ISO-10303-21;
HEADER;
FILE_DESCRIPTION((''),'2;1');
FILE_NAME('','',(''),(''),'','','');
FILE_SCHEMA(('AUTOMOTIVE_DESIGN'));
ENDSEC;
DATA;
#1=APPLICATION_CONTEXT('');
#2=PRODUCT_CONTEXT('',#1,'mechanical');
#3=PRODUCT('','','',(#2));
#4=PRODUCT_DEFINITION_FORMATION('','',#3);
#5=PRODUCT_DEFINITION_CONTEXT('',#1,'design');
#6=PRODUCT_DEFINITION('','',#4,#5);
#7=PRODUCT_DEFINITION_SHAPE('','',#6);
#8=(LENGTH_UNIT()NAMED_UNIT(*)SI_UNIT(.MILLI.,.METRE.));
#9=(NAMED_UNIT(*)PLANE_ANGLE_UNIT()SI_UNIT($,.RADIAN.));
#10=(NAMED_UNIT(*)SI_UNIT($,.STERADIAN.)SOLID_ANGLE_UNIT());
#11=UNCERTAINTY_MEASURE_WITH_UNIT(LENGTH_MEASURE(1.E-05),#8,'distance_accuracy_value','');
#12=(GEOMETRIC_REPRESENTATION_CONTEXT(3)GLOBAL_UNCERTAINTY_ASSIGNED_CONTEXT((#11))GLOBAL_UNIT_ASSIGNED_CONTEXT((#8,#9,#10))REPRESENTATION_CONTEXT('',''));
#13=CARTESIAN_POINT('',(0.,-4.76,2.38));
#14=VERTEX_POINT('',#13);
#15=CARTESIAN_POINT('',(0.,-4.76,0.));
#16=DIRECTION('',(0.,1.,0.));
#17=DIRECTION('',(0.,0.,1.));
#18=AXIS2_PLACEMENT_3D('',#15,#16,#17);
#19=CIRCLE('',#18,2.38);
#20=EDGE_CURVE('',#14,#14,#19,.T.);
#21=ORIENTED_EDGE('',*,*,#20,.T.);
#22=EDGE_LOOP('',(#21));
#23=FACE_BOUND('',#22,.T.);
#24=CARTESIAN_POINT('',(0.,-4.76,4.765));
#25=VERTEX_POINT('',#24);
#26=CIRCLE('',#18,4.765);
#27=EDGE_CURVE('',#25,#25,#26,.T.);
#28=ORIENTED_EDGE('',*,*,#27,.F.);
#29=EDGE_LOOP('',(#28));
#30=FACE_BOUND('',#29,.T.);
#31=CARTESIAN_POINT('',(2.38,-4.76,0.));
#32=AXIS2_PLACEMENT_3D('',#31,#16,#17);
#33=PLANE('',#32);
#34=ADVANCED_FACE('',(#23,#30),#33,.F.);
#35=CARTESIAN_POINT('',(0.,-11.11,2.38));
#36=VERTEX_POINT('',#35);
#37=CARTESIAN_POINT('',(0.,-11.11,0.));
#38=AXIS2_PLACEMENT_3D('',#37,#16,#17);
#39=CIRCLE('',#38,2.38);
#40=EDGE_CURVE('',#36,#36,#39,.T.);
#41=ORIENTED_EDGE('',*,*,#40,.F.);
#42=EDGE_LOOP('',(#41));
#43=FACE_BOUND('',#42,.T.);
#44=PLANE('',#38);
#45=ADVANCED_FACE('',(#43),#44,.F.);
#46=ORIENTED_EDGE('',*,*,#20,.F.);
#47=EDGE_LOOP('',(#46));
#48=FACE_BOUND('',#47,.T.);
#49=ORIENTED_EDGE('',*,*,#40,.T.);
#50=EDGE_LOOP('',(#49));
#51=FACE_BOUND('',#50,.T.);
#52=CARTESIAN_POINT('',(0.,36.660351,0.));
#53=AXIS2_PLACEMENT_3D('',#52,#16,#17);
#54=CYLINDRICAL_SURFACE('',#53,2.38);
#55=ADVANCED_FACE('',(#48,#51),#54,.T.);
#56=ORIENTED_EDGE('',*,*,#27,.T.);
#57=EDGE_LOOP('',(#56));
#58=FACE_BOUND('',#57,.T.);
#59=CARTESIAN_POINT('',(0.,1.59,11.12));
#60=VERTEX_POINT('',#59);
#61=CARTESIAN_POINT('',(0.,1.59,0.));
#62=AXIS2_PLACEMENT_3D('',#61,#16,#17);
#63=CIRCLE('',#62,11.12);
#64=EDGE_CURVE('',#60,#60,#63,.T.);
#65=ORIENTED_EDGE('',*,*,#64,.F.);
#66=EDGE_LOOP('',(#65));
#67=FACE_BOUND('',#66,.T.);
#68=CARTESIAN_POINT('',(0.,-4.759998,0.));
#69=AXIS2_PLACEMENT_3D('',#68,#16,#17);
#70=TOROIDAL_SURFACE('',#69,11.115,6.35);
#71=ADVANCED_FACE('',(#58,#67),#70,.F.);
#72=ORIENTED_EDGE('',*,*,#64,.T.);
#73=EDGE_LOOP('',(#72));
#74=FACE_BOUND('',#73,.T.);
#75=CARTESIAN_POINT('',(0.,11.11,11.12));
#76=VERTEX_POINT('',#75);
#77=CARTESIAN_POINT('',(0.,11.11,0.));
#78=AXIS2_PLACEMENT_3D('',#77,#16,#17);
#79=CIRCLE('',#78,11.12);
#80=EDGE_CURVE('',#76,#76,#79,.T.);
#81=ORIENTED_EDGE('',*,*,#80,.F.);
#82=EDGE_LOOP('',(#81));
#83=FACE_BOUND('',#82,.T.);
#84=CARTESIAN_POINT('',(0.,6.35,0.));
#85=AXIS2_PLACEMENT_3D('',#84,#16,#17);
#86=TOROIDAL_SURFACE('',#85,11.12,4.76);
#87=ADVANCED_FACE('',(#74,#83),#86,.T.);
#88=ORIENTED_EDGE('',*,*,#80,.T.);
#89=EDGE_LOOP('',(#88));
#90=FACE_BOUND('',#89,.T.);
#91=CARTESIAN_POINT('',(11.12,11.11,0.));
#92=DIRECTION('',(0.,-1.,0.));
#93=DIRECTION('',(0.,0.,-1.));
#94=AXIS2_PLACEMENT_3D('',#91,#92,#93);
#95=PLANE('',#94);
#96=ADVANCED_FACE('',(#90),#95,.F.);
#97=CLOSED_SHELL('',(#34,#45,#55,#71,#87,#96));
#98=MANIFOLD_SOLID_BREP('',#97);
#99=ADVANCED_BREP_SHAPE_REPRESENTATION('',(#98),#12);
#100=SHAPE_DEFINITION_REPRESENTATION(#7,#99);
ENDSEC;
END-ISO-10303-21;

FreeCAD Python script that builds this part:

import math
import FreeCAD as App
import Part
import Sketcher
from FreeCAD import Vector
Q = App.Units.Quantity

doc = App.newDocument("Part")
params = doc.addObject("Spreadsheet::Sheet", "Params")
for row, (alias, value) in enumerate([
    ("sketch1_radius", "0.25 in"),
    ("sketch1_height", "0.25 in"),
    ("revolution_angle", "360 deg"),
], start=1):
    params.set(f"A{row}", alias)
    params.set(f"B{row}", "=" + value)
    params.setAlias(f"B{row}", alias)

body = doc.addObject("PartDesign::Body", "Body")

# Sketch on XY plane
sketch1 = body.newObject("Sketcher::SketchObject", "Sketch")
sketch1.AttachmentSupport = (doc.getObject("XY_Plane"), [""])
sketch1.MapMode = "FlatFace"
sketch1.addGeometry(Part.LineSegment(Vector(11.1, 11.1, 0), Vector(0, 11.1, 0)), False)
sketch1.addGeometry(Part.LineSegment(Vector(0, 11.1, 0), Vector(0, -11.1, 0)), False)
sketch1.addGeometry(Part.LineSegment(Vector(0, -11.1, 0), Vector(2.4, -11.1, 0)), False)
sketch1.addGeometry(Part.LineSegment(Vector(2.4, -11.1, 0), Vector(2.4, -4.8, 0)), False)
sketch1.addGeometry(Part.LineSegment(Vector(2.4, -4.8, 0), Vector(4.8, -4.8, 0)), False)
sketch1.addGeometry(Part.ArcOfCircle(Part.Circle(Vector(11.1, -4.8, 0), Vector(0, 0, 1), 6.3), math.radians(90), math.radians(180)), False)
sketch1.addGeometry(Part.ArcOfCircle(Part.Circle(Vector(11.1, 6.3, 0), Vector(0, 0, 1), 4.8), math.radians(-90), math.radians(90)), False)
sketch1.addConstraint(Sketcher.Constraint("Coincident", 0, 2, 1, 1))
sketch1.addConstraint(Sketcher.Constraint("Coincident", 1, 2, 2, 1))
sketch1.addConstraint(Sketcher.Constraint("Coincident", 2, 2, 3, 1))
sketch1.addConstraint(Sketcher.Constraint("Coincident", 3, 2, 4, 1))
sketch1.addConstraint(Sketcher.Constraint("Coincident", 4, 2, 5, 2))
sketch1.addConstraint(Sketcher.Constraint("Coincident", 5, 1, 6, 1))
sketch1.addConstraint(Sketcher.Constraint("Tangent", 6, 2, 0, 1))
sketch1.addConstraint(Sketcher.Constraint("Horizontal", 0))
sketch1.addConstraint(Sketcher.Constraint("Vertical", 1))
sketch1.addConstraint(Sketcher.Constraint("Horizontal", 2))
sketch1.addConstraint(Sketcher.Constraint("Vertical", 3))
sketch1.addConstraint(Sketcher.Constraint("Horizontal", 4))
sketch1.addConstraint(Sketcher.Constraint("Symmetric", 0, 2, 1, 2, -1, 1))
sketch1.addConstraint(Sketcher.Constraint("Horizontal", 5, 3, 3, 2))
sketch1.addConstraint(Sketcher.Constraint("Vertical", 6, 3, 5, 1))
sketch1.addConstraint(Sketcher.Constraint("Radius", 5, Q("0.25 in")))
sketch1.addConstraint(Sketcher.Constraint("DistanceY", 3, 1, 3, 2, Q("0.25 in")))
sketch1.addConstraint(Sketcher.Constraint("Radius", 6, 4.76))
sketch1.addConstraint(Sketcher.Constraint("DistanceX", 0, 2, 0, 1, 11.12))
sketch1.addConstraint(Sketcher.Constraint("DistanceX", 2, 1, 2, 2, 2.38))
sketch1.addConstraint(Sketcher.Constraint("DistanceX", 4, 1, 4, 2, 2.385))
sketch1.setExpression("Constraints[15]", "Params.sketch1_radius")
sketch1.setExpression("Constraints[16]", "Params.sketch1_height")
revolution = body.newObject("PartDesign::Revolution", "Revolution")
revolution.Profile = sketch1
revolution.ReferenceAxis = (sketch1, ["V_Axis"])
revolution.setExpression("Angle", "Params.revolution_angle")

doc.recompute()
